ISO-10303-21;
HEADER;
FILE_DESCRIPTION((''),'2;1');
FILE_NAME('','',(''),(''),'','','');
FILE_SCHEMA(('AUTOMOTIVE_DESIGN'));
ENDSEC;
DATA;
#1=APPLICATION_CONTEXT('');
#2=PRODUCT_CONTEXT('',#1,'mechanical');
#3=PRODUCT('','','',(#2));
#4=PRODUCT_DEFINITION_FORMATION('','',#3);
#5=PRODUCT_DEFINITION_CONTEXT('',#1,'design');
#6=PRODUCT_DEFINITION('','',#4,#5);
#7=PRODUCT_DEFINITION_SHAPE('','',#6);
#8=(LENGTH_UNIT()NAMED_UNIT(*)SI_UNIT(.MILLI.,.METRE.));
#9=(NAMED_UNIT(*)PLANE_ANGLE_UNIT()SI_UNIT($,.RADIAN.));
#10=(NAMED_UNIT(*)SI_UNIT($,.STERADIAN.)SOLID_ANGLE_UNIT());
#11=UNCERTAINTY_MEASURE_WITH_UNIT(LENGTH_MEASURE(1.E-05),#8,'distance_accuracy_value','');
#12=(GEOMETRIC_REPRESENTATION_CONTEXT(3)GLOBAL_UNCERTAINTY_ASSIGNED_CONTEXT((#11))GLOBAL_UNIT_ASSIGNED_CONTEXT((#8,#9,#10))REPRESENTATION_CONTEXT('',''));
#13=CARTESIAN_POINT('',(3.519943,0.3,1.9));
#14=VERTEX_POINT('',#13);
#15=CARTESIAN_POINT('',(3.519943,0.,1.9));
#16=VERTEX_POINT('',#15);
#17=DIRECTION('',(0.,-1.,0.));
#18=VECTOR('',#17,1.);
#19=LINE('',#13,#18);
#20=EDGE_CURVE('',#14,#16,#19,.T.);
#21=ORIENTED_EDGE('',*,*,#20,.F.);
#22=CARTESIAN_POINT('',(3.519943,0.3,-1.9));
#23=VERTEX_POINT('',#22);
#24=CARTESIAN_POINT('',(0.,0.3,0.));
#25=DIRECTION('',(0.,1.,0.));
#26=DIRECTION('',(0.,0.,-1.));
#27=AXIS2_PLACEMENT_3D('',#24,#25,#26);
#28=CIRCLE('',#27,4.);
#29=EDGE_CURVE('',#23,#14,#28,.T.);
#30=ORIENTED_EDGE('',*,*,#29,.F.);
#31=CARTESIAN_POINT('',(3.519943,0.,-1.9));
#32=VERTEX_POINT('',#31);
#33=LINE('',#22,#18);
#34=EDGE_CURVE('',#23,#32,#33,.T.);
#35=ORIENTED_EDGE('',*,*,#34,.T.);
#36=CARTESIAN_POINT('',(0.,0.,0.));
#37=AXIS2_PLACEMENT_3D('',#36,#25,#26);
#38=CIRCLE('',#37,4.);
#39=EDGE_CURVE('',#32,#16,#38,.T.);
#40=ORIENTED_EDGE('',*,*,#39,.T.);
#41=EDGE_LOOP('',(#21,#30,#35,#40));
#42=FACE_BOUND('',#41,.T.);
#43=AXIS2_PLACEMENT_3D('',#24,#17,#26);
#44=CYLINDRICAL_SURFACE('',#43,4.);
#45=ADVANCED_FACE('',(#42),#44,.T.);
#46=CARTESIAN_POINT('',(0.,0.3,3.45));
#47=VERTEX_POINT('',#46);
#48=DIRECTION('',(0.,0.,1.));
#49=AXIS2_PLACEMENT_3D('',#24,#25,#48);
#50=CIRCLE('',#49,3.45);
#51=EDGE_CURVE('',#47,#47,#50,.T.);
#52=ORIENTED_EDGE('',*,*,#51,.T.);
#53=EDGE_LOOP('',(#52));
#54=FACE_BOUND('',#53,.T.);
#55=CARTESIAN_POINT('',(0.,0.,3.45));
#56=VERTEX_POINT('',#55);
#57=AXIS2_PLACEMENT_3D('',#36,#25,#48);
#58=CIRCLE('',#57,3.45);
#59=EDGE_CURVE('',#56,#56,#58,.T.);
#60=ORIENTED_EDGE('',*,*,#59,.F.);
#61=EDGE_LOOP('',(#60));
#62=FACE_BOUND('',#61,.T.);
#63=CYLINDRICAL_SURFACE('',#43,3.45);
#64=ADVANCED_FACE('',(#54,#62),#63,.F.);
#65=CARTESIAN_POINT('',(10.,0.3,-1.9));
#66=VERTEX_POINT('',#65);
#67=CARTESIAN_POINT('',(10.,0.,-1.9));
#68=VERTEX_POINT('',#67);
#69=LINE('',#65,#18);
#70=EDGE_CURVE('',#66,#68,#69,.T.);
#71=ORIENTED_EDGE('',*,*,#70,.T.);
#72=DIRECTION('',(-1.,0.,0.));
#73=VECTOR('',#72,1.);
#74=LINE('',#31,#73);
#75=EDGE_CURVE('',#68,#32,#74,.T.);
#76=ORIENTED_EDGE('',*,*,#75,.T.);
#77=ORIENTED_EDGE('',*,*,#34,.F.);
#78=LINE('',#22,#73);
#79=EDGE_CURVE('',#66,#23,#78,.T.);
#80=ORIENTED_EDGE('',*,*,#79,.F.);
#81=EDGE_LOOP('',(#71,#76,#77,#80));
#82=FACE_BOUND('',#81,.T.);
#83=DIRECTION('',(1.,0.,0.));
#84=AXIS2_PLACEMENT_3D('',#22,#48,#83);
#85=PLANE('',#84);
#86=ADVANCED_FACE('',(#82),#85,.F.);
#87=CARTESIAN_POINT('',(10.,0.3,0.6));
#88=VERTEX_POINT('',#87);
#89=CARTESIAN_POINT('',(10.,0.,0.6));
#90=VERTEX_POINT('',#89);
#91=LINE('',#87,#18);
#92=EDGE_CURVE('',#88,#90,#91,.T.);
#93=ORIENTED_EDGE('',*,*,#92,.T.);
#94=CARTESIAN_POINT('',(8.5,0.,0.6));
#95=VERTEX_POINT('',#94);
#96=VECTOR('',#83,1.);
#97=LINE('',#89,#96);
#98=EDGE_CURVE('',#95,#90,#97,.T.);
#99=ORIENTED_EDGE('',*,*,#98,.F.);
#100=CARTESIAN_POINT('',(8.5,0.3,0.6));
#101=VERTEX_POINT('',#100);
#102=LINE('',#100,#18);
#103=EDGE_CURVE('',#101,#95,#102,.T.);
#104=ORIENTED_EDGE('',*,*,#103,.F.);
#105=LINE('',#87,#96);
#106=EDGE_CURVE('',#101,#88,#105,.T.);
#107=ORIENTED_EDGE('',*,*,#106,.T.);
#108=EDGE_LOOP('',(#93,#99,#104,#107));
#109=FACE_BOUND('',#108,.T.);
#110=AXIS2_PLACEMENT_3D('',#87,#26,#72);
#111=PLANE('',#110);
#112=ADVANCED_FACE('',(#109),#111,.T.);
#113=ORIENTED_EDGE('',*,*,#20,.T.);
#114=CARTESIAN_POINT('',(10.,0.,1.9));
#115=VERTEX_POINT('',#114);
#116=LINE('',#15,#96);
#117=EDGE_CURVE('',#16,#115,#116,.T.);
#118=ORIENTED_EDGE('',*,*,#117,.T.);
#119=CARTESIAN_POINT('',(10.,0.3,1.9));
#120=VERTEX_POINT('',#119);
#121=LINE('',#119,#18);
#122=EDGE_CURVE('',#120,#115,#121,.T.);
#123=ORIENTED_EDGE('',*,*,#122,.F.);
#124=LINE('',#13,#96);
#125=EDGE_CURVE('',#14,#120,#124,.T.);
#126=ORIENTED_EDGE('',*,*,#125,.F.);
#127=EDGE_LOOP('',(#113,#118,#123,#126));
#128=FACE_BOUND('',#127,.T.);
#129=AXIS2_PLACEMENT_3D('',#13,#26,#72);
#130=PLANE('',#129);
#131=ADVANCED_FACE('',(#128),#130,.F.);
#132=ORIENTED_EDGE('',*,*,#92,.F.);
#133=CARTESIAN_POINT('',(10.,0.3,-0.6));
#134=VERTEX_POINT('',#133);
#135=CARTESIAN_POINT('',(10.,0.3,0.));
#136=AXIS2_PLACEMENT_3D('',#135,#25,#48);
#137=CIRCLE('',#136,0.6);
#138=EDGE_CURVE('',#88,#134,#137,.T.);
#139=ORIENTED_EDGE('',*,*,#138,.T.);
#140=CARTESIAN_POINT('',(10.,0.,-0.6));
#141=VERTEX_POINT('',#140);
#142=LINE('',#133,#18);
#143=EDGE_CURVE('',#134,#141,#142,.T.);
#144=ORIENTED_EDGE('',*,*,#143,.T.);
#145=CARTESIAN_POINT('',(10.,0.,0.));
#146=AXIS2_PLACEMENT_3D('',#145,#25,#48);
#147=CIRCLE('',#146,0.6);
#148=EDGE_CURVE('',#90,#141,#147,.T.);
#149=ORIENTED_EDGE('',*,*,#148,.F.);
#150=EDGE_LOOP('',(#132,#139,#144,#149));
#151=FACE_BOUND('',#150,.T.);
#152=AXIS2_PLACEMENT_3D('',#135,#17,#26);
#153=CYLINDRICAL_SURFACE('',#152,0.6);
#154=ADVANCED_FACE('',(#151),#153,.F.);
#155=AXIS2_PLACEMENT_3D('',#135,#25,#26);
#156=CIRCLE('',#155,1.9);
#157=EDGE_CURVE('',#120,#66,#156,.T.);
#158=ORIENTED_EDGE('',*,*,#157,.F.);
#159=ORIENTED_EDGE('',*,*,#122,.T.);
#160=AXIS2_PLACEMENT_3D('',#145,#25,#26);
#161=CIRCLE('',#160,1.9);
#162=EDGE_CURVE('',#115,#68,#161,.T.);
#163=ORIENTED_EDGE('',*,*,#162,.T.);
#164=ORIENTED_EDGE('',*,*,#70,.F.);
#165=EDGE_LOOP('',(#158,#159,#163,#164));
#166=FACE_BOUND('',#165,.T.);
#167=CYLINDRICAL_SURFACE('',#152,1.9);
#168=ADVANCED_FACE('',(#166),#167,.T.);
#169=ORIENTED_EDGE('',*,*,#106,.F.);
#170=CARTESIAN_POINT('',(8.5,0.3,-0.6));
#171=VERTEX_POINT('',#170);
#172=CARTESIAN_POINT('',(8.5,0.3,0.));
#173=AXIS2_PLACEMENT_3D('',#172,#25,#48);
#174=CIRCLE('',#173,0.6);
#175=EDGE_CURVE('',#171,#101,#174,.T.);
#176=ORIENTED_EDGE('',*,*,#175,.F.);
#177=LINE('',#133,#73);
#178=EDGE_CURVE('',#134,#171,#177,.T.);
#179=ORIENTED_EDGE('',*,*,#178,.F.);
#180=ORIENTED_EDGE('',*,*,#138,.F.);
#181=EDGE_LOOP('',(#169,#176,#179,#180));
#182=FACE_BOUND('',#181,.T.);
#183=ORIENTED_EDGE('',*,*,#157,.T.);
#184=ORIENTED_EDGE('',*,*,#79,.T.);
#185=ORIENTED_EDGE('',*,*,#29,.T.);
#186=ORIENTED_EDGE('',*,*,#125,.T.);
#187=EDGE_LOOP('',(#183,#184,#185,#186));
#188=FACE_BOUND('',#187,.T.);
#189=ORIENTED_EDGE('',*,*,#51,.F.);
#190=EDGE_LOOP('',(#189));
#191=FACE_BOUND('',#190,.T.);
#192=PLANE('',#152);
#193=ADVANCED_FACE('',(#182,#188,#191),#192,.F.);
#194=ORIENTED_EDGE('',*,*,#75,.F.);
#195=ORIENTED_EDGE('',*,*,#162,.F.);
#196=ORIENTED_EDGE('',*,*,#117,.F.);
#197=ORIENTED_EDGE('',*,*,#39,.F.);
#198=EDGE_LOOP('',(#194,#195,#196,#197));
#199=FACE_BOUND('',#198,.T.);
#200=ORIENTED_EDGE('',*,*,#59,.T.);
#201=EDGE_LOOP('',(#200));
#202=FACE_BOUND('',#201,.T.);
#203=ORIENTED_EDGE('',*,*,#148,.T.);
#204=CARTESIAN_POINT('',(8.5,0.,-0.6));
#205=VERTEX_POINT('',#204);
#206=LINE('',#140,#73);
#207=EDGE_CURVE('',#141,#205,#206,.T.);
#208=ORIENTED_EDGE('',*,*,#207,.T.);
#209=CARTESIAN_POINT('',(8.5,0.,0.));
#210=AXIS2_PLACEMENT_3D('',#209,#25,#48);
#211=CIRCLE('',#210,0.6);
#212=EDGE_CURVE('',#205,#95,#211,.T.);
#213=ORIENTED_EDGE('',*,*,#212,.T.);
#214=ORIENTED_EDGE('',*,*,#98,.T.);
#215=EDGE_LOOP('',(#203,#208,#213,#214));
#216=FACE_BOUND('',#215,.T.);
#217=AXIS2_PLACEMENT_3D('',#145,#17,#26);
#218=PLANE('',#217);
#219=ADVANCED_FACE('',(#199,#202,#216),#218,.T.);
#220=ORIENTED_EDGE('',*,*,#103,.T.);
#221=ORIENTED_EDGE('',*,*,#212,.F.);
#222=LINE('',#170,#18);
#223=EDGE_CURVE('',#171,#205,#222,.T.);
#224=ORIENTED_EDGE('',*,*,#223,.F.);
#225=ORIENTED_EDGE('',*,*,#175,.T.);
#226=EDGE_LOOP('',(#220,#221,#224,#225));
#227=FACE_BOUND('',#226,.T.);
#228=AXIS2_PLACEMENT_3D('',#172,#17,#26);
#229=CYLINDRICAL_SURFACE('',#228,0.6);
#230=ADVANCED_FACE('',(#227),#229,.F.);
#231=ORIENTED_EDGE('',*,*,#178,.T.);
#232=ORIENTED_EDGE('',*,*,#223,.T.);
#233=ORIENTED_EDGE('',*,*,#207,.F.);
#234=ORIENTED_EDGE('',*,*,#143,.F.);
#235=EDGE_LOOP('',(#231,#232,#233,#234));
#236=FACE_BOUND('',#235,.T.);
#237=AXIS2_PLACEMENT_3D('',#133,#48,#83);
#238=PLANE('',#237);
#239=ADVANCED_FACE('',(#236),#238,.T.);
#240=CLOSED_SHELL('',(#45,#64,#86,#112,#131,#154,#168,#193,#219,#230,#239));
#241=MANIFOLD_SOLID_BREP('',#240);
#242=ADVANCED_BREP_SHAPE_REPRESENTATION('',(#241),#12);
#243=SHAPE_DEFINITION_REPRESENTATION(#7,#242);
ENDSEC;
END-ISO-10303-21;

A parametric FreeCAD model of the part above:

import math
import FreeCAD as App
import Part
import Sketcher
Q = App.Units.Quantity

doc = App.newDocument("Part")
body = doc.addObject("PartDesign::Body", "Body")

sketch1 = doc.addObject("Sketcher::SketchObject", "Sketch")
body.addObject(sketch1)
sketch1.AttachmentSupport = (doc.XZ_Plane, [""])
sketch1.MapMode = "FlatFace"
sketch1.addGeometry([
    Part.LineSegment(App.Vector(10, -1.9, 0), App.Vector(3.5, -1.9, 0)),
    Part.ArcOfCircle(Part.Circle(App.Vector(0, 0, 0), App.Vector(0, 0, 1), 4), math.radians(28), math.radians(332)),
    Part.LineSegment(App.Vector(3.5, 1.9, 0), App.Vector(10, 1.9, 0)),
    Part.ArcOfCircle(Part.Circle(App.Vector(10, 0, 0), App.Vector(0, 0, 1), 1.9), math.radians(-90), math.radians(90)),
    Part.LineSegment(App.Vector(10, 0.6, 0), App.Vector(8.5, 0.6, 0)),
    Part.ArcOfCircle(Part.Circle(App.Vector(8.5, 0, 0), App.Vector(0, 0, 1), 0.6), math.radians(90), math.radians(270)),
    Part.LineSegment(App.Vector(8.5, -0.6, 0), App.Vector(10, -0.6, 0)),
    Part.ArcOfCircle(Part.Circle(App.Vector(10, 0, 0), App.Vector(0, 0, 1), 0.6), math.radians(-90), math.radians(90)),
    Part.Circle(App.Vector(0, 0, 0), App.Vector(0, 0, 1), 3.5),
], False)
sketch1.addConstraint([
    Sketcher.Constraint("Coincident", 0, 2, 1, 2),
    Sketcher.Constraint("Coincident", 1, 1, 2, 1),
    Sketcher.Constraint("Tangent", 2, 2, 3, 2),
    Sketcher.Constraint("Tangent", 3, 1, 0, 1),
    Sketcher.Constraint("Tangent", 4, 2, 5, 1),
    Sketcher.Constraint("Tangent", 5, 2, 6, 1),
    Sketcher.Constraint("Tangent", 6, 2, 7, 1),
    Sketcher.Constraint("Tangent", 7, 2, 4, 1),
    Sketcher.Constraint("Horizontal", 0),
    Sketcher.Constraint("Horizontal", 2),
    Sketcher.Constraint("Horizontal", 4),
    Sketcher.Constraint("Horizontal", 6),
    Sketcher.Constraint("Coincident", 1, 3, -1, 1),
    Sketcher.Constraint("Coincident", 8, 3, -1, 1),
    Sketcher.Constraint("Coincident", 7, 3, 3, 3),
    Sketcher.Constraint("PointOnObject", 3, 3, -1),
    Sketcher.Constraint("Radius", 1, Q("4 mm")),
    Sketcher.Constraint("Diameter", 8, Q("6.9 mm")),
    Sketcher.Constraint("Radius", 3, Q("1.9 mm")),
    Sketcher.Constraint("Radius", 5, Q("0.6 mm")),
    Sketcher.Constraint("DistanceX", 4, 2, 4, 1, Q("1.5 mm")),
    Sketcher.Constraint("DistanceX", -1, 1, 3, 3, Q("10 mm")),
])
pad1 = doc.addObject("PartDesign::Pad", "Pad")
body.addObject(pad1)
pad1.Profile = sketch1
pad1.Length = 0.3
pad1.Reversed = True

doc.recompute()
